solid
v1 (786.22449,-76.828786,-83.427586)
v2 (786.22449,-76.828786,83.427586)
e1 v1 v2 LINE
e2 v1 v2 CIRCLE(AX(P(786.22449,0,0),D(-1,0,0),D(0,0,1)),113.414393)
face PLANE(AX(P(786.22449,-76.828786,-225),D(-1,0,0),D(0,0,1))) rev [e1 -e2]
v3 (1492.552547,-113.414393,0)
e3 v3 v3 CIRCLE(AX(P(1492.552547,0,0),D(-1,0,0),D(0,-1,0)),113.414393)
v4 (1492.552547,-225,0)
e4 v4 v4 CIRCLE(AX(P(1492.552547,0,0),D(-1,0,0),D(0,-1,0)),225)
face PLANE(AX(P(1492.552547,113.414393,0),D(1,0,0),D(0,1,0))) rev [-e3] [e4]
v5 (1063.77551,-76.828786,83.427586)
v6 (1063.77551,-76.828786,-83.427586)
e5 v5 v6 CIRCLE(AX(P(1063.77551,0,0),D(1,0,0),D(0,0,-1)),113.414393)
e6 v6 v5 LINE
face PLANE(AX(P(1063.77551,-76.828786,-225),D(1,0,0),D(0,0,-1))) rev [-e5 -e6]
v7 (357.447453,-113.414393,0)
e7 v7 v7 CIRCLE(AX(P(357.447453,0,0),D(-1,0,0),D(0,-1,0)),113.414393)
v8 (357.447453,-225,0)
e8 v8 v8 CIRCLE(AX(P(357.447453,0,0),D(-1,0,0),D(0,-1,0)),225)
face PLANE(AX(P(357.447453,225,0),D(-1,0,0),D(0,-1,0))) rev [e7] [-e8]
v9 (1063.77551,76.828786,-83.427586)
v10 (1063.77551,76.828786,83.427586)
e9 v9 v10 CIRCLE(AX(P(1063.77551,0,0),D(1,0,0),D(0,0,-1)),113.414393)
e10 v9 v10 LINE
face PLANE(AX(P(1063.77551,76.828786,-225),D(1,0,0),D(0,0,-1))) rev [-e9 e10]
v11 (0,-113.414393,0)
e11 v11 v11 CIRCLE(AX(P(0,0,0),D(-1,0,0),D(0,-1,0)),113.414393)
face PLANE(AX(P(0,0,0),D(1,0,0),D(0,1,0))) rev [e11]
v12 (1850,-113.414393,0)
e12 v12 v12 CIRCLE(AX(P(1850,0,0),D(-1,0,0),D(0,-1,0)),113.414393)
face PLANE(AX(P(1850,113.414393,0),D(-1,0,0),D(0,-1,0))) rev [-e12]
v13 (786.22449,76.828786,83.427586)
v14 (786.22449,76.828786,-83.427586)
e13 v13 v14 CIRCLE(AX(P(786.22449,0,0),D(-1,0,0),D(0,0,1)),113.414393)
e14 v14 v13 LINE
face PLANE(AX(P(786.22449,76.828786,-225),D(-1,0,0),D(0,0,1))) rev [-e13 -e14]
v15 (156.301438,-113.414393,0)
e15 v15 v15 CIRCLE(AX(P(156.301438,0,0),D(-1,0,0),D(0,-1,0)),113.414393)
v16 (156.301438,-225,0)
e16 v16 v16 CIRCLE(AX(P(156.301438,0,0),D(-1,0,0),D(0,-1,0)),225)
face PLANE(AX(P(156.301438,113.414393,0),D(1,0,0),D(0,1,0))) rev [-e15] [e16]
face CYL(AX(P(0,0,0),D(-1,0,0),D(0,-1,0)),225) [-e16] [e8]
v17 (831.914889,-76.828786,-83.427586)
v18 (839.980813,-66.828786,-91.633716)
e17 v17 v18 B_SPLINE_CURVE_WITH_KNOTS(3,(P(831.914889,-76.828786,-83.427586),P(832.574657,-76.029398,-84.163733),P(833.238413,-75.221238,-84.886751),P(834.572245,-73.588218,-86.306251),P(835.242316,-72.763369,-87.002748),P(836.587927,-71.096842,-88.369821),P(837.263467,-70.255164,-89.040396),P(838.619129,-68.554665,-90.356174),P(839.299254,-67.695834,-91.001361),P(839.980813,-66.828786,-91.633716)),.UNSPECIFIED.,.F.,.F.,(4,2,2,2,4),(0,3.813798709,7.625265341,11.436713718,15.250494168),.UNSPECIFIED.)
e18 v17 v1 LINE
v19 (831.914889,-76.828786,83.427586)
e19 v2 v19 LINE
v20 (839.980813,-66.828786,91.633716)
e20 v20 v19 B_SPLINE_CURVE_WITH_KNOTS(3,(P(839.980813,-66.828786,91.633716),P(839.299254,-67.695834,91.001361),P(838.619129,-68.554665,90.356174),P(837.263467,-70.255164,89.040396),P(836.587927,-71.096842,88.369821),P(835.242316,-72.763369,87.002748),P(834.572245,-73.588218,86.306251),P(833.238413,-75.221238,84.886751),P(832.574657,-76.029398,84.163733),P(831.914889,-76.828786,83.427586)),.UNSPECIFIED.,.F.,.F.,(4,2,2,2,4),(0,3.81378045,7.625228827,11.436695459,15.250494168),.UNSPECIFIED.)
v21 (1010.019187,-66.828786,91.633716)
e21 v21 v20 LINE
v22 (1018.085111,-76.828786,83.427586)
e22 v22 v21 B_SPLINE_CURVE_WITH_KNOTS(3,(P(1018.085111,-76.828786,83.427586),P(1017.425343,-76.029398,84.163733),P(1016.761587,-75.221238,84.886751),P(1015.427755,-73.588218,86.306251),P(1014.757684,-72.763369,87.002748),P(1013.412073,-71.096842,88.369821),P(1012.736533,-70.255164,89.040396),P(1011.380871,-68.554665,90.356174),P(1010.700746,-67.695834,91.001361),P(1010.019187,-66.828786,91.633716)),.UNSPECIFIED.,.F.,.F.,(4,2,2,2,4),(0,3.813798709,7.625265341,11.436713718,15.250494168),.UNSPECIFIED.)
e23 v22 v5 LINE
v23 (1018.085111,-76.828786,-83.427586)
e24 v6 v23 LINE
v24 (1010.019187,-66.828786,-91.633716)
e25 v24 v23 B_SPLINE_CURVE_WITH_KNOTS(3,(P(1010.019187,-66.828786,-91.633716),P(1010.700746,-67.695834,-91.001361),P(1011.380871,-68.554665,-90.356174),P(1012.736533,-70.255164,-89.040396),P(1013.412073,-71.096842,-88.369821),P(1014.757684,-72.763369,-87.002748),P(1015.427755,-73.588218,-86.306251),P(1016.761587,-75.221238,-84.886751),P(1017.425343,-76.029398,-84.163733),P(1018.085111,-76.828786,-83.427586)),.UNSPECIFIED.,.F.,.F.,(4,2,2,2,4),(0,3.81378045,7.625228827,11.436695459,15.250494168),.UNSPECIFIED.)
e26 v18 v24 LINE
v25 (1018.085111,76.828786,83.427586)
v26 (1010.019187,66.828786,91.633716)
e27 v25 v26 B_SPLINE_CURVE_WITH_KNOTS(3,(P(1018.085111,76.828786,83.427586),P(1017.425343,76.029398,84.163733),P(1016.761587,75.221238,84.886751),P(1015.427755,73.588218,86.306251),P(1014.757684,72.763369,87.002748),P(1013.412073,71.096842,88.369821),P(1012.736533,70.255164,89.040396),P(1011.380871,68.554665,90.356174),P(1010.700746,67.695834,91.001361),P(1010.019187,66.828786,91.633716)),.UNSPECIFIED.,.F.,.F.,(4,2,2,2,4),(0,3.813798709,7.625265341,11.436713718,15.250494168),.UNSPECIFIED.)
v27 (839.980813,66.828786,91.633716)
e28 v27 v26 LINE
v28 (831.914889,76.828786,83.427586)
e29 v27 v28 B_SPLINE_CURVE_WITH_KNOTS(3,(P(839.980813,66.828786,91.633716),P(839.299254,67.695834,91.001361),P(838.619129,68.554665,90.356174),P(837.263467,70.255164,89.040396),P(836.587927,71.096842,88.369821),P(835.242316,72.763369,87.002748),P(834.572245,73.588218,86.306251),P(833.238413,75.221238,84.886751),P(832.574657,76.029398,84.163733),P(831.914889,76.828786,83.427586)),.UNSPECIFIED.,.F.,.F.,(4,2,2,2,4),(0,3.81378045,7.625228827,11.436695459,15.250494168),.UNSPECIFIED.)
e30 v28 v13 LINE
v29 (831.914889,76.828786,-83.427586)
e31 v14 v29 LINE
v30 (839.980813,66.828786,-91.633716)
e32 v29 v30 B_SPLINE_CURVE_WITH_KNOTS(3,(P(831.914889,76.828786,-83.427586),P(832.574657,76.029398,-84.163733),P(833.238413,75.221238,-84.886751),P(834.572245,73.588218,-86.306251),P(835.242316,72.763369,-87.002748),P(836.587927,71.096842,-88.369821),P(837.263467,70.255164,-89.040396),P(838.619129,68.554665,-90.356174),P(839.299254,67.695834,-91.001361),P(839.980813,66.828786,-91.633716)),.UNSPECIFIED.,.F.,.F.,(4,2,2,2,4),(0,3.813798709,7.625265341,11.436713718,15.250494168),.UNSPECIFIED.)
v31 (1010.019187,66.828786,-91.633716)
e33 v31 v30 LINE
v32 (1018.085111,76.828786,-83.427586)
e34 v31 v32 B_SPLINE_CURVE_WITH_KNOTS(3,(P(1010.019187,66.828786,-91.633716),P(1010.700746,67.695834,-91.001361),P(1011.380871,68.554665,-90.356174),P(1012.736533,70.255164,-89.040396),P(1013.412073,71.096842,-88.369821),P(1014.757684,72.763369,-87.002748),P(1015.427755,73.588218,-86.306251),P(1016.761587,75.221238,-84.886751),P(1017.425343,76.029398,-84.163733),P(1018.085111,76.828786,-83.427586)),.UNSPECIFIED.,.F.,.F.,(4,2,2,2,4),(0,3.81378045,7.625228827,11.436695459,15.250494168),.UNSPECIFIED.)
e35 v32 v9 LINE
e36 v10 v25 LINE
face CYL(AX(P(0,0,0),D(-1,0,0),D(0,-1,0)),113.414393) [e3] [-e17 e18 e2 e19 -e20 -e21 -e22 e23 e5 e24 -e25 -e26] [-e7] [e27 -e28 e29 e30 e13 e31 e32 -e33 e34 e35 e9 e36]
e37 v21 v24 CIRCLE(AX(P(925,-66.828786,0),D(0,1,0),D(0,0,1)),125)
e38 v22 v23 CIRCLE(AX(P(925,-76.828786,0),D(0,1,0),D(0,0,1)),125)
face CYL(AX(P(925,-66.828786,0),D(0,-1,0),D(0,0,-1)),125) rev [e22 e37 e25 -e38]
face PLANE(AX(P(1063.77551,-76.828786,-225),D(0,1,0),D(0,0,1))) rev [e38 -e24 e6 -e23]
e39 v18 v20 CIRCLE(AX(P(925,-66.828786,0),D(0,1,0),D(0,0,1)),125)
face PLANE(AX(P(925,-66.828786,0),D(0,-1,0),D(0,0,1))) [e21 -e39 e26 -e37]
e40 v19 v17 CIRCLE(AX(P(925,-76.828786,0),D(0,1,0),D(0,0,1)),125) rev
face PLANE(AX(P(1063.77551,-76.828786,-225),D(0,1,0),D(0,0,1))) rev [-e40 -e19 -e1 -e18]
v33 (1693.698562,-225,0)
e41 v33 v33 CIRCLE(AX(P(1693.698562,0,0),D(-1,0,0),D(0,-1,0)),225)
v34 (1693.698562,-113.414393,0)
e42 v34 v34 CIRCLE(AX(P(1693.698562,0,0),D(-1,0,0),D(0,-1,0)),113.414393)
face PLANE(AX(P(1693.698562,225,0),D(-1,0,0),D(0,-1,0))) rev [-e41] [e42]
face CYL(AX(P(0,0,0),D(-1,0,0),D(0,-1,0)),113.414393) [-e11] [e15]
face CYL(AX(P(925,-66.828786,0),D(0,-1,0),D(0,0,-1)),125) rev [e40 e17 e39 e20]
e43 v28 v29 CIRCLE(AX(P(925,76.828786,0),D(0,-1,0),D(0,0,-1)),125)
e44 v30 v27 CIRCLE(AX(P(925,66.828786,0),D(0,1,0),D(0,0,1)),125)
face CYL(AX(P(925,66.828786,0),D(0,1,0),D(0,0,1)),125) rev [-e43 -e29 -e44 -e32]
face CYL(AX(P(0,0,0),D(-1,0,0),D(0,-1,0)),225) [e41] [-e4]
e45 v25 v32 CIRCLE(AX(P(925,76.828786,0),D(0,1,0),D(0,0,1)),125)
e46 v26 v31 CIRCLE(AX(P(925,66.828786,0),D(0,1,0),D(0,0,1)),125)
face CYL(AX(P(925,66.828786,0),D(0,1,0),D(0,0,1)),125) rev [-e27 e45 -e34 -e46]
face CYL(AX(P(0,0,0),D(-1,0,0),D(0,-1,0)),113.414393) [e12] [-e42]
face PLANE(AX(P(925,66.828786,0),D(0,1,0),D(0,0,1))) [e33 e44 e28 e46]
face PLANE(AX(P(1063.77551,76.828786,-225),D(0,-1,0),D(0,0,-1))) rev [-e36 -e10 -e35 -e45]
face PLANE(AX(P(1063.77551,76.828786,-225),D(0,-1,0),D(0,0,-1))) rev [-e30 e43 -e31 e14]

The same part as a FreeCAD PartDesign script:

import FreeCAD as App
import Part
import Sketcher
Q = App.Units.Quantity


def add_polygon(sketch, points):
    """Adds a closed chain of lines whose ends are joined by coincident constraints."""
    first, n = sketch.GeometryCount, len(points)
    for a, b in zip(points, points[1:] + points[:1]):
        sketch.addGeometry(Part.LineSegment(App.Vector(*a, 0), App.Vector(*b, 0)), False)
    for i in range(n):
        sketch.addConstraint(Sketcher.Constraint("Coincident", first + i, 2, first + (i + 1) % n, 1))

doc = App.newDocument("Part")
body = doc.addObject("PartDesign::Body", "Body")

sketch1 = doc.addObject("Sketcher::SketchObject", "Sketch")
body.addObject(sketch1)
sketch1.AttachmentSupport = (doc.XY_Plane, [""])
sketch1.MapMode = "FlatFace"
add_polygon(sketch1, [(0, 113), (0, 0), (1850, 0), (1850, 113), (1694, 113), (1694, 225), (1493, 225), (1493, 113), (357, 113), (357, 225), (156, 225), (156, 113)])
sketch1.addConstraint(Sketcher.Constraint("Vertical", 0))
sketch1.addConstraint(Sketcher.Constraint("Horizontal", 1))
sketch1.addConstraint(Sketcher.Constraint("Vertical", 2))
sketch1.addConstraint(Sketcher.Constraint("Horizontal", 3))
sketch1.addConstraint(Sketcher.Constraint("Vertical", 4))
sketch1.addConstraint(Sketcher.Constraint("Horizontal", 5))
sketch1.addConstraint(Sketcher.Constraint("Vertical", 6))
sketch1.addConstraint(Sketcher.Constraint("Horizontal", 7))
sketch1.addConstraint(Sketcher.Constraint("Vertical", 8))
sketch1.addConstraint(Sketcher.Constraint("Horizontal", 9))
sketch1.addConstraint(Sketcher.Constraint("Vertical", 10))
sketch1.addConstraint(Sketcher.Constraint("Horizontal", 11))
sketch1.addConstraint(Sketcher.Constraint("Coincident", 0, 2, -1, 1))
sketch1.addConstraint(Sketcher.Constraint("Horizontal", 3, 2, 6, 2))
sketch1.addConstraint(Sketcher.Constraint("Horizontal", 5, 2, 8, 2))
sketch1.addConstraint(Sketcher.Constraint("Horizontal", 7, 2, 10, 2))
sketch1.addConstraint(Sketcher.Constraint("Equal", 5, 9))
sketch1.addConstraint(Sketcher.Constraint("Equal", 3, 11))
sketch1.addConstraint(Sketcher.Constraint("DistanceX", 1, 1, 1, 2, Q("1850 mm")))
sketch1.addConstraint(Sketcher.Constraint("DistanceY", -1, 1, 4, 2, Q("225 mm")))
sketch1.addConstraint(Sketcher.Constraint("DistanceX", 3, 2, 3, 1, Q("156.301438 mm")))
sketch1.addConstraint(Sketcher.Constraint("DistanceX", 5, 2, 5, 1, Q("201.146015 mm")))
sketch1.addConstraint(Sketcher.Constraint("DistanceY", 0, 2, 0, 1, Q("113.414393 mm")))
revolution = doc.addObject("PartDesign::Revolution", "Revolution")
body.addObject(revolution)
revolution.Profile = sketch1
revolution.ReferenceAxis = (sketch1, ["H_Axis"])
revolution.Angle = 360

sketch2 = doc.addObject("Sketcher::SketchObject", "Sketch001")
body.addObject(sketch2)
sketch2.AttachmentSupport = (doc.XY_Plane, [""])
sketch2.MapMode = "FlatFace"
sketch2.AttachmentOffset = App.Placement(App.Vector(0, 0, 120), App.Rotation())
add_polygon(sketch2, [(786, 150), (786, 77), (1064, 77), (1064, 150)])
add_polygon(sketch2, [(786, -77), (786, -150), (1064, -150), (1064, -77)])
sketch2.addConstraint(Sketcher.Constraint("Vertical", 0))
sketch2.addConstraint(Sketcher.Constraint("Horizontal", 1))
sketch2.addConstraint(Sketcher.Constraint("Vertical", 2))
sketch2.addConstraint(Sketcher.Constraint("Horizontal", 3))
sketch2.addConstraint(Sketcher.Constraint("Vertical", 4))
sketch2.addConstraint(Sketcher.Constraint("Horizontal", 5))
sketch2.addConstraint(Sketcher.Constraint("Vertical", 6))
sketch2.addConstraint(Sketcher.Constraint("Horizontal", 7))
sketch2.addConstraint(Sketcher.Constraint("Symmetric", 3, 2, 4, 2, -1))
sketch2.addConstraint(Sketcher.Constraint("Symmetric", 1, 2, 6, 2, -1))
sketch2.addConstraint(Sketcher.Constraint("DistanceY", -1, 1, 2, 2, Q("150 mm")))
sketch2.addConstraint(Sketcher.Constraint("DistanceX", 1, 1, 1, 2, Q("277.55102 mm")))
sketch2.addConstraint(Sketcher.Constraint("DistanceY", 0, 2, 0, 1, Q("73.171214 mm")))
sketch2.addConstraint(Sketcher.Constraint("DistanceX", -1, 1, 0, 2, Q("786.22449 mm")))
pocket1 = doc.addObject("PartDesign::Pocket", "Pocket")
body.addObject(pocket1)
pocket1.Profile = sketch2
pocket1.Type = "ThroughAll"

sketch3 = doc.addObject("Sketcher::SketchObject", "Sketch002")
body.addObject(sketch3)
sketch3.AttachmentSupport = (doc.XZ_Plane, [""])
sketch3.MapMode = "FlatFace"
sketch3.AttachmentOffset = App.Placement(App.Vector(0, 0, -76.828786), App.Rotation())
sketch3.addGeometry(Part.Circle(App.Vector(925, 0, 0), App.Vector(0, 0, 1), 125), False)
sketch3.addConstraint(Sketcher.Constraint("PointOnObject", 0, 3, -1))
sketch3.addConstraint(Sketcher.Constraint("Diameter", 0, Q("250 mm")))
sketch3.addConstraint(Sketcher.Constraint("DistanceX", -1, 1, 0, 3, Q("925 mm")))
pocket2 = doc.addObject("PartDesign::Pocket", "Pocket001")
body.addObject(pocket2)
pocket2.Profile = sketch3
pocket2.Length = 10
pocket2.Reversed = True
doc.recompute()

mirrored = doc.addObject("PartDesign::Mirrored", "Mirrored")
body.addObject(mirrored)
mirrored.Originals = [pocket2]
mirrored.MirrorPlane = (doc.XZ_Plane, [""])
body.Tip = mirrored

doc.recompute()
